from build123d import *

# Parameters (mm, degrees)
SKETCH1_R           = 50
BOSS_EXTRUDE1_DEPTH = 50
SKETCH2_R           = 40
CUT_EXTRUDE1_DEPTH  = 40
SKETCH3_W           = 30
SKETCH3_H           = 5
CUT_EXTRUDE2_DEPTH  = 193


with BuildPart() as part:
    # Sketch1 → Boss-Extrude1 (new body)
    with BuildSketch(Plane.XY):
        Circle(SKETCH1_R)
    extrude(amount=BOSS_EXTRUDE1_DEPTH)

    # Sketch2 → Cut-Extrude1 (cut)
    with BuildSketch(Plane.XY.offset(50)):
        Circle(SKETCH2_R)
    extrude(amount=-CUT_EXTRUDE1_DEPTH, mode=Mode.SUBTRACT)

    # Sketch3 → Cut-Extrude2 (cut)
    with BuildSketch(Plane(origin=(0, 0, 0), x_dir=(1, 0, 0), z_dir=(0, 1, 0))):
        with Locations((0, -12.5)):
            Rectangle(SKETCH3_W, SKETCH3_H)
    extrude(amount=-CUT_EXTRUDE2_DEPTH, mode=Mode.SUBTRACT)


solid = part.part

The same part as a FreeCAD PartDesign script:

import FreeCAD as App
import Part
import Sketcher
from FreeCAD import Vector


def add_polygon(sketch, points):
    """Adds a closed chain of lines whose ends are joined by coincident constraints."""
    first, n = sketch.GeometryCount, len(points)
    for a, b in zip(points, points[1:] + points[:1]):
        sketch.addGeometry(Part.LineSegment(App.Vector(*a, 0), App.Vector(*b, 0)), False)
    for i in range(n):
        sketch.addConstraint(Sketcher.Constraint("Coincident", first + i, 2, first + (i + 1) % n, 1))

doc = App.newDocument("Part")
body = doc.addObject("PartDesign::Body", "Body")

# Sketch on XY plane
sketch1 = doc.addObject("Sketcher::SketchObject", "Sketch")
body.addObject(sketch1)
sketch1.AttachmentSupport = (doc.XY_Plane, [""])
sketch1.MapMode = "FlatFace"
sketch1.addGeometry(Part.Circle(Vector(0, 0, 0), Vector(0, 0, 1), 50), False)
sketch1.addConstraint(Sketcher.Constraint("Coincident", 0, 3, -1, 1))
sketch1.addConstraint(Sketcher.Constraint("Diameter", 0, 100.0))
pad1 = doc.addObject("PartDesign::Pad", "Pad")
body.addObject(pad1)
pad1.Profile = sketch1
pad1.Length = 50

# Sketch on XY plane
sketch2 = doc.addObject("Sketcher::SketchObject", "Sketch001")
body.addObject(sketch2)
sketch2.AttachmentSupport = (doc.XY_Plane, [""])
sketch2.MapMode = "FlatFace"
sketch2.AttachmentOffset = App.Placement(Vector(0, 0, 50), App.Rotation())
sketch2.addGeometry(Part.Circle(Vector(0, 0, 0), Vector(0, 0, 1), 40), False)
sketch2.addConstraint(Sketcher.Constraint("Coincident", 0, 3, -1, 1))
sketch2.addConstraint(Sketcher.Constraint("Diameter", 0, 80.0))
pocket1 = doc.addObject("PartDesign::Pocket", "Pocket")
body.addObject(pocket1)
pocket1.Profile = sketch2
pocket1.Length = 40

# Sketch on XZ plane
sketch3 = doc.addObject("Sketcher::SketchObject", "Sketch002")
body.addObject(sketch3)
sketch3.AttachmentSupport = (doc.XZ_Plane, [""])
sketch3.MapMode = "FlatFace"
add_polygon(sketch3, [(-15, 10), (-15, 15), (15, 15), (15, 10)])  # lines 0-3
sketch3.addConstraint(Sketcher.Constraint("Vertical", 0))
sketch3.addConstraint(Sketcher.Constraint("Horizontal", 1))
sketch3.addConstraint(Sketcher.Constraint("Vertical", 2))
sketch3.addConstraint(Sketcher.Constraint("Horizontal", 3))
sketch3.addConstraint(Sketcher.Constraint("DistanceX", 1, 1, 1, 2, 30.0))
sketch3.addConstraint(Sketcher.Constraint("DistanceY", 0, 1, 0, 2, 5.0))
sketch3.addConstraint(Sketcher.Constraint("DistanceX", 0, 2, -1, 1, 15.0))
sketch3.addConstraint(Sketcher.Constraint("DistanceY", -1, 1, 0, 2, 15.0))
pocket2 = doc.addObject("PartDesign::Pocket", "Pocket001")
body.addObject(pocket2)
pocket2.Profile = sketch3
pocket2.Length = 193
pocket2.Reversed = True

doc.recompute()
